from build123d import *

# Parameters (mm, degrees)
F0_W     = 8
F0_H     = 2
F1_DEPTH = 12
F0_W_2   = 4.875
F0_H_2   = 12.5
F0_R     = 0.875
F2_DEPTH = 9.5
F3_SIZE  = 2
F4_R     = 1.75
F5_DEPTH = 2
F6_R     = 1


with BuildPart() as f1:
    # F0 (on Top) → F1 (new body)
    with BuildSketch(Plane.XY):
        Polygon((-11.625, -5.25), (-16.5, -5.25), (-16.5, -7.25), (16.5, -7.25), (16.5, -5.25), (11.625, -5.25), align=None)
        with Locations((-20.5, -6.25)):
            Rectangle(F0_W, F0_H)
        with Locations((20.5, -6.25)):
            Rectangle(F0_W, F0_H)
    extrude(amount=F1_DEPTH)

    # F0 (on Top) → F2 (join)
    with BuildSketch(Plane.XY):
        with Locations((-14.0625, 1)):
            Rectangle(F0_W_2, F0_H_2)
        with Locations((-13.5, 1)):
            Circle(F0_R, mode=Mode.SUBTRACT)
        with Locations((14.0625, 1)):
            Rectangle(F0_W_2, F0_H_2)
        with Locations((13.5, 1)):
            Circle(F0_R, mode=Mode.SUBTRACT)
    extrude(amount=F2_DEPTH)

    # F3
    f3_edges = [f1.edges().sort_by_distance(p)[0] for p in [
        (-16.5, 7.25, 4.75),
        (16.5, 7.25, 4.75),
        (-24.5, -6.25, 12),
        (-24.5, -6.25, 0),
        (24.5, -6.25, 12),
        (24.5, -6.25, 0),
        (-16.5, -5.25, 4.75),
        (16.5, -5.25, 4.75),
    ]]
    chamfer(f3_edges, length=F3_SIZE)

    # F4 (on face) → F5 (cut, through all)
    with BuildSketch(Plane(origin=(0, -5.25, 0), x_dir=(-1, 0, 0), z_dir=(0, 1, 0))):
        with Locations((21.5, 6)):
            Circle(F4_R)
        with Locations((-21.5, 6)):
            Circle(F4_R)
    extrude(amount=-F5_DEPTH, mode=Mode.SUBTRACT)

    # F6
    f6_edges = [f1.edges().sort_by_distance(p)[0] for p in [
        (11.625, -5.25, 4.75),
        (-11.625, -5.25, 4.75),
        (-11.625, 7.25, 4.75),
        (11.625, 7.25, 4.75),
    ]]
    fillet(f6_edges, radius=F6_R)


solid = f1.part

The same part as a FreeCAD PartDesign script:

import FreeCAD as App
import Part
import Sketcher
from FreeCAD import Vector
Q = App.Units.Quantity


def edges_at(feature, points):
    """Names of the edges that pass closest to the given points."""
    edges = feature.Shape.Edges
    near = lambda p: min(range(len(edges)), key=lambda i: edges[i].distToShape(Part.Vertex(*p))[0])
    return sorted({f"Edge{near(p) + 1}" for p in points})


def add_polygon(sketch, points):
    """Adds a closed chain of lines whose ends are joined by coincident constraints."""
    first, n = sketch.GeometryCount, len(points)
    for a, b in zip(points, points[1:] + points[:1]):
        sketch.addGeometry(Part.LineSegment(App.Vector(*a, 0), App.Vector(*b, 0)), False)
    for i in range(n):
        sketch.addConstraint(Sketcher.Constraint("Coincident", first + i, 2, first + (i + 1) % n, 1))

doc = App.newDocument("Part")
params = doc.addObject("Spreadsheet::Sheet", "Params")
for row, (alias, value) in enumerate([
    ("sketch1_width", "49 mm"),
    ("sketch1_height", "2 mm"),
    ("pad1_length", "12 mm"),
    ("sketch2_diameter", "1.75 mm"),
    ("sketch2_height", "12.5 mm"),
    ("pad2_length", "9.5 mm"),
    ("chamfer_size", "2 mm"),
    ("sketch3_diameter", "3.5 mm"),
    ("fillet_radius", "1 mm"),
], start=1):
    params.set(f"A{row}", alias)
    params.set(f"B{row}", "=" + value)
    params.setAlias(f"B{row}", alias)

body = doc.addObject("PartDesign::Body", "Body")

# Sketch on XY plane
sketch1 = body.newObject("Sketcher::SketchObject", "Sketch")
sketch1.AttachmentSupport = (doc.getObject("XY_Plane"), [""])
sketch1.MapMode = "FlatFace"
add_polygon(sketch1, [(-24.5, -5.2), (-24.5, -7.2), (24.5, -7.2), (24.5, -5.2)])  # lines 0-3
sketch1.addConstraint([
    Sketcher.Constraint("Vertical", 0),
    Sketcher.Constraint("Horizontal", 1),
    Sketcher.Constraint("Vertical", 2),
    Sketcher.Constraint("Horizontal", 3),
    Sketcher.Constraint("DistanceX", 1, 1, 1, 2, Q("49 mm")),
    Sketcher.Constraint("DistanceY", 0, 2, 0, 1, Q("2 mm")),
    Sketcher.Constraint("DistanceX", 0, 2, -1, 1, Q("24.5 mm")),
    Sketcher.Constraint("DistanceY", 0, 2, -1, 1, Q("7.25 mm")),
])
sketch1.setExpression("Constraints[8]", "Params.sketch1_width")
sketch1.setExpression("Constraints[9]", "Params.sketch1_height")
pad1 = body.newObject("PartDesign::Pad", "Pad")
pad1.Profile = sketch1
pad1.setExpression("Length", "Params.pad1_length")

# Sketch on XY plane
sketch2 = body.newObject("Sketcher::SketchObject", "Sketch001")
sketch2.AttachmentSupport = (doc.getObject("XY_Plane"), [""])
sketch2.MapMode = "FlatFace"
add_polygon(sketch2, [(-16.5, 7.2), (-16.5, -5.2), (-11.6, -5.2), (-11.6, 7.2)])  # lines 0-3
sketch2.addGeometry(Part.Circle(Vector(-13.5, 1, 0), Vector(0, 0, 1), 0.9), False)  # 4
add_polygon(sketch2, [(11.6, 7.2), (11.6, -5.2), (16.5, -5.2), (16.5, 7.2)])  # lines 5-8
sketch2.addGeometry(Part.Circle(Vector(13.5, 1, 0), Vector(0, 0, 1), 0.9), False)  # 9
sketch2.addConstraint([
    Sketcher.Constraint("Vertical", 0),
    Sketcher.Constraint("Horizontal", 1),
    Sketcher.Constraint("Vertical", 2),
    Sketcher.Constraint("Horizontal", 3),
    Sketcher.Constraint("Vertical", 5),
    Sketcher.Constraint("Horizontal", 6),
    Sketcher.Constraint("Vertical", 7),
    Sketcher.Constraint("Horizontal", 8),
    Sketcher.Constraint("Equal", 4, 9),
    Sketcher.Constraint("Symmetric", 4, 3, 9, 3, -2),
    Sketcher.Constraint("Symmetric", 1, 2, 5, 2, -2),
    Sketcher.Constraint("Symmetric", 3, 2, 7, 2, -2),
    Sketcher.Constraint("Diameter", 4, Q("1.75 mm")),
    Sketcher.Constraint("DistanceY", 0, 2, 0, 1, Q("12.5 mm")),
    Sketcher.Constraint("DistanceY", -1, 1, 4, 3, Q("1 mm")),
    Sketcher.Constraint("DistanceX", 4, 3, 9, 3, Q("27 mm")),
    Sketcher.Constraint("DistanceX", 0, 2, 4, 3, Q("3 mm")),
    Sketcher.Constraint("DistanceX", 1, 1, 1, 2, Q("4.875 mm")),
    Sketcher.Constraint("DistanceY", 0, 2, -1, 1, Q("5.25 mm")),
])
sketch2.setExpression("Constraints[20]", "Params.sketch2_diameter")
sketch2.setExpression("Constraints[21]", "Params.sketch2_height")
pad2 = body.newObject("PartDesign::Pad", "Pad001")
pad2.Profile = sketch2
pad2.setExpression("Length", "Params.pad2_length")
doc.recompute()

chamfer = body.newObject("PartDesign::Chamfer", "Chamfer")
chamfer.Base = (pad2, edges_at(pad2, [
    (-16.5, 7.25, 4.75),
    (16.5, 7.25, 4.75),
    (-24.5, -6.25, 12),
    (-24.5, -6.25, 0),
    (24.5, -6.25, 12),
    (24.5, -6.25, 0),
    (-16.5, -5.25, 4.75),
    (16.5, -5.25, 4.75),
]))
chamfer.setExpression("Size", "Params.chamfer_size")

# Sketch on XZ plane
sketch3 = body.newObject("Sketcher::SketchObject", "Sketch002")
sketch3.AttachmentSupport = (doc.getObject("XZ_Plane"), [""])
sketch3.MapMode = "FlatFace"
sketch3.AttachmentOffset = App.Placement(Vector(0, 0, 5.25), App.Rotation())
sketch3.addGeometry([
    Part.Circle(Vector(-21.5, 6, 0), Vector(0, 0, 1), 1.8),
    Part.Circle(Vector(21.5, 6, 0), Vector(0, 0, 1), 1.8),
], False)
sketch3.addConstraint([
    Sketcher.Constraint("Equal", 0, 1),
    Sketcher.Constraint("Symmetric", 0, 3, 1, 3, -2),
    Sketcher.Constraint("Diameter", 0, Q("3.5 mm")),
    Sketcher.Constraint("DistanceY", -1, 1, 0, 3, Q("6 mm")),
    Sketcher.Constraint("DistanceX", 0, 3, 1, 3, Q("43 mm")),
])
sketch3.setExpression("Constraints[2]", "Params.sketch3_diameter")
pocket1 = body.newObject("PartDesign::Pocket", "Pocket")
pocket1.Profile = sketch3
pocket1.Type = "ThroughAll"
pocket1.Reversed = True
doc.recompute()

fillet = body.newObject("PartDesign::Fillet", "Fillet")
fillet.Base = (pocket1, edges_at(pocket1, [
    (11.625, -5.25, 4.75),
    (-11.625, -5.25, 4.75),
    (-11.625, 7.25, 4.75),
    (11.625, 7.25, 4.75),
]))
fillet.setExpression("Radius", "Params.fillet_radius")

doc.recompute()
